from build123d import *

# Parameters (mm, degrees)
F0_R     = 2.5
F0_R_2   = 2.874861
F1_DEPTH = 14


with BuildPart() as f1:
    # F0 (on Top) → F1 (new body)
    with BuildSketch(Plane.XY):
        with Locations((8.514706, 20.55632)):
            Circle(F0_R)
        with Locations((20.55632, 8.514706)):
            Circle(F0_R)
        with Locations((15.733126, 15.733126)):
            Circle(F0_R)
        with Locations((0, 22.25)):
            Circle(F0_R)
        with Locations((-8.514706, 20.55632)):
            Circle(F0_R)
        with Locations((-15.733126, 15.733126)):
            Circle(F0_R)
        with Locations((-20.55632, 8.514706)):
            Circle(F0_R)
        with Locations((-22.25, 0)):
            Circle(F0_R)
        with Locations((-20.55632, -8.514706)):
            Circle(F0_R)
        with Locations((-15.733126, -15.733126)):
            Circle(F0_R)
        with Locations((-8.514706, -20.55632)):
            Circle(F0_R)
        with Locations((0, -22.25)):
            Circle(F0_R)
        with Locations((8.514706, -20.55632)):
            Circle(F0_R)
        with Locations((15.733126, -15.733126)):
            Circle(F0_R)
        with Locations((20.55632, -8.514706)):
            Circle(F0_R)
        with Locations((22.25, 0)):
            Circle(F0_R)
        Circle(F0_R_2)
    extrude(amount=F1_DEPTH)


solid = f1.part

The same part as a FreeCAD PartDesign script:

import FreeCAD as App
import Part
import Sketcher

V = App.Vector
Q = App.Units.Quantity

doc = App.newDocument("Part")
params = doc.addObject("Spreadsheet::Sheet", "Params")
for row, (alias, value) in enumerate([
    ("sketch1_diameter", "5 mm"),
    ("pad1_length", "14 mm"),
], start=1):
    params.set(f"A{row}", alias)
    params.set(f"B{row}", "=" + value)
    params.setAlias(f"B{row}", alias)

body = doc.addObject("PartDesign::Body", "Body")
body.AllowCompound = True

# Sketch on XY plane
sketch1 = body.newObject("Sketcher::SketchObject", "Sketch")
sketch1.AttachmentSupport = (doc.getObject("XY_Plane"), [""])
sketch1.MapMode = "FlatFace"
sketch1.addGeometry([
    Part.Circle(V(8.5, 20.6, 0), V(0, 0, 1), 2.5),  # 0
    Part.Circle(V(20.6, 8.5, 0), V(0, 0, 1), 2.5),  # 1
    Part.Circle(V(15.7, 15.7, 0), V(0, 0, 1), 2.5),  # 2
    Part.Circle(V(0, 22.2, 0), V(0, 0, 1), 2.5),  # 3
    Part.Circle(V(-8.5, 20.6, 0), V(0, 0, 1), 2.5),  # 4
    Part.Circle(V(-15.7, 15.7, 0), V(0, 0, 1), 2.5),  # 5
    Part.Circle(V(-20.6, 8.5, 0), V(0, 0, 1), 2.5),  # 6
    Part.Circle(V(-22.2, 0, 0), V(0, 0, 1), 2.5),  # 7
    Part.Circle(V(-20.6, -8.5, 0), V(0, 0, 1), 2.5),  # 8
    Part.Circle(V(-15.7, -15.7, 0), V(0, 0, 1), 2.5),  # 9
    Part.Circle(V(-8.5, -20.6, 0), V(0, 0, 1), 2.5),  # 10
    Part.Circle(V(0, -22.2, 0), V(0, 0, 1), 2.5),  # 11
    Part.Circle(V(8.5, -20.6, 0), V(0, 0, 1), 2.5),  # 12
    Part.Circle(V(15.7, -15.7, 0), V(0, 0, 1), 2.5),  # 13
    Part.Circle(V(20.6, -8.5, 0), V(0, 0, 1), 2.5),  # 14
    Part.Circle(V(22.2, 0, 0), V(0, 0, 1), 2.5),  # 15
    Part.Circle(V(0, 0, 0), V(0, 0, 1), 2.9),  # 16
], False)
sketch1.addConstraint([
    Sketcher.Constraint("Coincident", 16, 3, -1, 1),
    Sketcher.Constraint("Equal", 0, 1),
    Sketcher.Constraint("Equal", 1, 2),
    Sketcher.Constraint("Equal", 2, 3),
    Sketcher.Constraint("Equal", 3, 4),
    Sketcher.Constraint("Equal", 4, 5),
    Sketcher.Constraint("Equal", 5, 6),
    Sketcher.Constraint("Equal", 6, 7),
    Sketcher.Constraint("Equal", 7, 8),
    Sketcher.Constraint("Equal", 8, 9),
    Sketcher.Constraint("Equal", 9, 10),
    Sketcher.Constraint("Equal", 10, 11),
    Sketcher.Constraint("Equal", 11, 12),
    Sketcher.Constraint("Equal", 12, 13),
    Sketcher.Constraint("Equal", 13, 14),
    Sketcher.Constraint("Equal", 14, 15),
    Sketcher.Constraint("Symmetric", 1, 3, 8, 3, -1, 1),
    Sketcher.Constraint("Symmetric", 2, 3, 9, 3, -1, 1),
    Sketcher.Constraint("Symmetric", 0, 3, 10, 3, -1, 1),
    Sketcher.Constraint("Symmetric", 3, 3, 11, 3, -1, 1),
    Sketcher.Constraint("Symmetric", 4, 3, 12, 3, -1, 1),
    Sketcher.Constraint("Symmetric", 5, 3, 13, 3, -1, 1),
    Sketcher.Constraint("Symmetric", 6, 3, 14, 3, -1, 1),
    Sketcher.Constraint("Symmetric", 7, 3, 15, 3, -1, 1),
    Sketcher.Constraint("Symmetric", 0, 3, 4, 3, -2),
    Sketcher.Constraint("Symmetric", 2, 3, 5, 3, -2),
    Sketcher.Constraint("Symmetric", 1, 3, 6, 3, -2),
    Sketcher.Constraint("PointOnObject", 3, 3, -2),
    Sketcher.Constraint("PointOnObject", 7, 3, -1),
    Sketcher.Constraint("Diameter", 0, Q("5 mm")),
    Sketcher.Constraint("DistanceY", -1, 1, 3, 3, Q("22.25 mm")),
    Sketcher.Constraint("DistanceX", 7, 3, -1, 1, Q("22.25 mm")),
    Sketcher.Constraint("Diameter", 16, Q("5.749722 mm")),
    Sketcher.Constraint("DistanceY", -1, 1, 0, 3, Q("20.55632 mm")),
    Sketcher.Constraint("DistanceX", -1, 1, 1, 3, Q("20.55632 mm")),
    Sketcher.Constraint("DistanceX", 0, 3, 2, 3, Q("7.21842 mm")),
    Sketcher.Constraint("DistanceY", 1, 3, 2, 3, Q("7.21842 mm")),
    Sketcher.Constraint("DistanceX", -1, 1, 0, 3, Q("8.514706 mm")),
    Sketcher.Constraint("DistanceY", -1, 1, 1, 3, Q("8.514706 mm")),
])
sketch1.setExpression("Constraints[29]", "Params.sketch1_diameter")
pad1 = body.newObject("PartDesign::Pad", "Pad")
pad1.Profile = sketch1
pad1.setExpression("Length", "Params.pad1_length")

doc.recompute()
